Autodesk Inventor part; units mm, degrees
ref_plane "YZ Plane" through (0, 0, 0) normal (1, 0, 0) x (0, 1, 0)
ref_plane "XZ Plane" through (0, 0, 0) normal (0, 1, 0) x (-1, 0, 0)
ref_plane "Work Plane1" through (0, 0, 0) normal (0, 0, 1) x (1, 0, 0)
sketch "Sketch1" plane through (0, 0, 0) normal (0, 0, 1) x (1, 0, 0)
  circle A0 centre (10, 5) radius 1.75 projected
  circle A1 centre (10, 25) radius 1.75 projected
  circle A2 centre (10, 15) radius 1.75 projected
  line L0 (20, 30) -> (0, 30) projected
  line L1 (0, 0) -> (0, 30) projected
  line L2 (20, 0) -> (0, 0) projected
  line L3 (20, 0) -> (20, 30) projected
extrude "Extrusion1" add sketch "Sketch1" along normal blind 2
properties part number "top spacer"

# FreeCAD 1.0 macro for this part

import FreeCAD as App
import Part
import Sketcher

V = App.Vector
Q = App.Units.Quantity

doc = App.newDocument("Part")
body = doc.addObject("PartDesign::Body", "Body")

sketch1 = doc.addObject("Sketcher::SketchObject", "Sketch")
body.addObject(sketch1)
sketch1.AttachmentSupport = (doc.XY_Plane, [""])
sketch1.MapMode = "FlatFace"
sketch1.addGeometry(Part.LineSegment(V(20, 0, 0), V(20, 30, 0)), False)
sketch1.addGeometry(Part.LineSegment(V(20, 30, 0), V(0, 30, 0)), False)
sketch1.addGeometry(Part.LineSegment(V(0, 30, 0), V(0, 0, 0)), False)
sketch1.addGeometry(Part.LineSegment(V(0, 0, 0), V(20, 0, 0)), False)
sketch1.addGeometry(Part.Circle(V(10, 5, 0), V(0, 0, 1), 1.8), False)
sketch1.addGeometry(Part.Circle(V(10, 15, 0), V(0, 0, 1), 1.8), False)
sketch1.addGeometry(Part.Circle(V(10, 25, 0), V(0, 0, 1), 1.8), False)
sketch1.addConstraint(Sketcher.Constraint("Coincident", 0, 2, 1, 1))
sketch1.addConstraint(Sketcher.Constraint("Coincident", 1, 2, 2, 1))
sketch1.addConstraint(Sketcher.Constraint("Coincident", 2, 2, 3, 1))
sketch1.addConstraint(Sketcher.Constraint("Coincident", 3, 2, 0, 1))
sketch1.addConstraint(Sketcher.Constraint("Vertical", 0))
sketch1.addConstraint(Sketcher.Constraint("Horizontal", 1))
sketch1.addConstraint(Sketcher.Constraint("Vertical", 2))
sketch1.addConstraint(Sketcher.Constraint("Horizontal", 3))
sketch1.addConstraint(Sketcher.Constraint("Coincident", 2, 2, -1, 1))
sketch1.addConstraint(Sketcher.Constraint("Equal", 4, 5))
sketch1.addConstraint(Sketcher.Constraint("Equal", 5, 6))
sketch1.addConstraint(Sketcher.Constraint("Vertical", 4, 3, 5, 3))
sketch1.addConstraint(Sketcher.Constraint("Vertical", 5, 3, 6, 3))
sketch1.addConstraint(Sketcher.Constraint("Diameter", 4, Q("3.5 mm")))
sketch1.addConstraint(Sketcher.Constraint("DistanceX", 1, 2, 1, 1, Q("20 mm")))
sketch1.addConstraint(Sketcher.Constraint("DistanceY", 0, 1, 0, 2, Q("30 mm")))
sketch1.addConstraint(Sketcher.Constraint("DistanceX", -1, 1, 4, 3, Q("10 mm")))
sketch1.addConstraint(Sketcher.Constraint("DistanceY", -1, 1, 4, 3, Q("5 mm")))
sketch1.addConstraint(Sketcher.Constraint("DistanceY", -1, 1, 5, 3, Q("15 mm")))
sketch1.addConstraint(Sketcher.Constraint("DistanceY", -1, 1, 6, 3, Q("25 mm")))
pad1 = doc.addObject("PartDesign::Pad", "Pad")
body.addObject(pad1)
pad1.Profile = sketch1
pad1.Length = 2

doc.recompute()
